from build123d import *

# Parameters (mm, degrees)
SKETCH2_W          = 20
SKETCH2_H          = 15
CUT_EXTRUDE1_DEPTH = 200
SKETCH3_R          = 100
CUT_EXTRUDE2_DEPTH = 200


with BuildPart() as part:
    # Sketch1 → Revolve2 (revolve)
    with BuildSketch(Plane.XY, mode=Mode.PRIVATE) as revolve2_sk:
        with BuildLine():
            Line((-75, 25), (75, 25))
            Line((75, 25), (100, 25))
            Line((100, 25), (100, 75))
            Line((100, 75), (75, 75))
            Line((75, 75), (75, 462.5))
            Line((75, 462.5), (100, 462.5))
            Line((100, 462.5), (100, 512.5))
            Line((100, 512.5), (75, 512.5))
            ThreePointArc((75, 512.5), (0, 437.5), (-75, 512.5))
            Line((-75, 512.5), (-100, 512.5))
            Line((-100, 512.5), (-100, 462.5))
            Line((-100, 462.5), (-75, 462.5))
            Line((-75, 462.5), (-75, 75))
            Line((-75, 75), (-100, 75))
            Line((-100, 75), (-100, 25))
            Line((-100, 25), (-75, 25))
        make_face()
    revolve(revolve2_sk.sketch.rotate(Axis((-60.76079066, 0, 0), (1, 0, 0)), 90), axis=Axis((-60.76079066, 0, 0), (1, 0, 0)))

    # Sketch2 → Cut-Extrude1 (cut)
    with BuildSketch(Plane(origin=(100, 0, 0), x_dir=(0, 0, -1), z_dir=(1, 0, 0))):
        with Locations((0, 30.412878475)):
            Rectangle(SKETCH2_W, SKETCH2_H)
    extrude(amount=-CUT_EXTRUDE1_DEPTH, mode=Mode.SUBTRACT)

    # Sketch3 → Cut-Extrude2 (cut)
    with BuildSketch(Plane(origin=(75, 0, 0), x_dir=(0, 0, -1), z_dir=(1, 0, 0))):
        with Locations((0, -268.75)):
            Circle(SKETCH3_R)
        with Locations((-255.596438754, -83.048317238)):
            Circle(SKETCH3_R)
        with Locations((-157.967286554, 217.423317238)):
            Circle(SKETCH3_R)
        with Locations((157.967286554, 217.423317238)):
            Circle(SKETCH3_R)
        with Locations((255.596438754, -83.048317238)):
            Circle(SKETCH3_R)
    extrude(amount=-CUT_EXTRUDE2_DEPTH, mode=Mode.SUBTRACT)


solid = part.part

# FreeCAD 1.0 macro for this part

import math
import FreeCAD as App
import Part
import Sketcher
from FreeCAD import Vector


def add_polygon(sketch, points):
    """Adds a closed chain of lines whose ends are joined by coincident constraints."""
    first, n = sketch.GeometryCount, len(points)
    for a, b in zip(points, points[1:] + points[:1]):
        sketch.addGeometry(Part.LineSegment(App.Vector(*a, 0), App.Vector(*b, 0)), False)
    for i in range(n):
        sketch.addConstraint(Sketcher.Constraint("Coincident", first + i, 2, first + (i + 1) % n, 1))

doc = App.newDocument("Part")
params = doc.addObject("Spreadsheet::Sheet", "Params")
for row, (alias, value) in enumerate([
    ("sketch1_radius", "75 mm"),
    ("sketch1_width", "25 mm"),
    ("sketch1_height", "50 mm"),
    ("sketch1_height2", "387.5 mm"),
    ("revolution_angle", "360 deg"),
    ("sketch2_width", "15 mm"),
    ("sketch2_height", "20 mm"),
    ("pocket1_length", "200 mm"),
    ("sketch3_diameter", "200 mm"),
    ("pocket2_length", "200 mm"),
], start=1):
    params.set(f"A{row}", alias)
    params.set(f"B{row}", "=" + value)
    params.setAlias(f"B{row}", alias)

body = doc.addObject("PartDesign::Body", "Body")

# Sketch on XY plane
sketch1 = body.newObject("Sketcher::SketchObject", "Sketch")
sketch1.AttachmentSupport = (doc.getObject("XY_Plane"), [""])
sketch1.MapMode = "FlatFace"
sketch1.addGeometry([
    Part.LineSegment(Vector(100, 25, 0), Vector(100, 75, 0)),  # 0
    Part.LineSegment(Vector(100, 75, 0), Vector(75, 75, 0)),  # 1
    Part.LineSegment(Vector(75, 75, 0), Vector(75, 462, 0)),  # 2
    Part.LineSegment(Vector(75, 462, 0), Vector(100, 462, 0)),  # 3
    Part.LineSegment(Vector(100, 462, 0), Vector(100, 512, 0)),  # 4
    Part.LineSegment(Vector(100, 512, 0), Vector(75, 512, 0)),  # 5
    Part.ArcOfCircle(Part.Circle(Vector(0, 512, 0), Vector(0, 0, 1), 75), math.radians(180), math.radians(360)),  # 6
    Part.LineSegment(Vector(-75, 512, 0), Vector(-100, 512, 0)),  # 7
    Part.LineSegment(Vector(-100, 512, 0), Vector(-100, 462, 0)),  # 8
    Part.LineSegment(Vector(-100, 462, 0), Vector(-75, 462, 0)),  # 9
    Part.LineSegment(Vector(-75, 462, 0), Vector(-75, 75, 0)),  # 10
    Part.LineSegment(Vector(-75, 75, 0), Vector(-100, 75, 0)),  # 11
    Part.LineSegment(Vector(-100, 75, 0), Vector(-100, 25, 0)),  # 12
    Part.LineSegment(Vector(-100, 25, 0), Vector(100, 25, 0)),  # 13
], False)
sketch1.addConstraint([
    Sketcher.Constraint("Coincident", 0, 2, 1, 1),
    Sketcher.Constraint("Coincident", 1, 2, 2, 1),
    Sketcher.Constraint("Coincident", 2, 2, 3, 1),
    Sketcher.Constraint("Coincident", 3, 2, 4, 1),
    Sketcher.Constraint("Coincident", 4, 2, 5, 1),
    Sketcher.Constraint("Coincident", 5, 2, 6, 2),
    Sketcher.Constraint("Coincident", 6, 1, 7, 1),
    Sketcher.Constraint("Coincident", 7, 2, 8, 1),
    Sketcher.Constraint("Coincident", 8, 2, 9, 1),
    Sketcher.Constraint("Coincident", 9, 2, 10, 1),
    Sketcher.Constraint("Coincident", 10, 2, 11, 1),
    Sketcher.Constraint("Coincident", 11, 2, 12, 1),
    Sketcher.Constraint("Coincident", 12, 2, 13, 1),
    Sketcher.Constraint("Coincident", 13, 2, 0, 1),
    Sketcher.Constraint("Vertical", 0),
    Sketcher.Constraint("Horizontal", 1),
    Sketcher.Constraint("Vertical", 2),
    Sketcher.Constraint("Horizontal", 3),
    Sketcher.Constraint("Vertical", 4),
    Sketcher.Constraint("Horizontal", 5),
    Sketcher.Constraint("Horizontal", 7),
    Sketcher.Constraint("Vertical", 8),
    Sketcher.Constraint("Horizontal", 9),
    Sketcher.Constraint("Vertical", 10),
    Sketcher.Constraint("Horizontal", 11),
    Sketcher.Constraint("Vertical", 12),
    Sketcher.Constraint("Horizontal", 13),
    Sketcher.Constraint("Symmetric", 5, 2, 6, 1, -2),
    Sketcher.Constraint("Symmetric", 3, 2, 8, 2, -2),
    Sketcher.Constraint("Symmetric", 1, 2, 10, 2, -2),
    Sketcher.Constraint("Horizontal", 6, 3, 4, 2),
    Sketcher.Constraint("Vertical", 0, 2, 3, 2),
    Sketcher.Constraint("Vertical", 2, 2, 5, 2),
    Sketcher.Constraint("Vertical", 8, 2, 11, 2),
    Sketcher.Constraint("Equal", 0, 4),
    Sketcher.Constraint("Radius", 6, 75.0),
    Sketcher.Constraint("DistanceX", 1, 2, 1, 1, 25.0),
    Sketcher.Constraint("DistanceY", 0, 1, 0, 2, 50.0),
    Sketcher.Constraint("DistanceY", 2, 1, 2, 2, 387.5),
    Sketcher.Constraint("DistanceY", -1, 1, 0, 2, 75.0),
])
sketch1.setExpression("Constraints[35]", "Params.sketch1_radius")
sketch1.setExpression("Constraints[36]", "Params.sketch1_width")
sketch1.setExpression("Constraints[37]", "Params.sketch1_height")
sketch1.setExpression("Constraints[38]", "Params.sketch1_height2")
revolution = body.newObject("PartDesign::Revolution", "Revolution")
revolution.Profile = sketch1
revolution.ReferenceAxis = (sketch1, ["H_Axis"])
revolution.setExpression("Angle", "Params.revolution_angle")

# Sketch on YZ plane
sketch2 = body.newObject("Sketcher::SketchObject", "Sketch001")
sketch2.AttachmentSupport = (doc.getObject("YZ_Plane"), [""])
sketch2.MapMode = "FlatFace"
sketch2.AttachmentOffset = App.Placement(Vector(0, 0, 100), App.Rotation())
add_polygon(sketch2, [(38, 10), (23, 10), (23, -10), (38, -10)])  # lines 0-3
sketch2.addConstraint([
    Sketcher.Constraint("Horizontal", 0),
    Sketcher.Constraint("Vertical", 1),
    Sketcher.Constraint("Horizontal", 2),
    Sketcher.Constraint("Vertical", 3),
    Sketcher.Constraint("DistanceX", 0, 2, 0, 1, 15.0),
    Sketcher.Constraint("DistanceY", 1, 2, 1, 1, 20.0),
    Sketcher.Constraint("DistanceY", -1, 1, 0, 2, 10.0),
    Sketcher.Constraint("DistanceX", -1, 1, 0, 2, 22.912878),
])
sketch2.setExpression("Constraints[8]", "Params.sketch2_width")
sketch2.setExpression("Constraints[9]", "Params.sketch2_height")
pocket1 = body.newObject("PartDesign::Pocket", "Pocket")
pocket1.Profile = sketch2
pocket1.setExpression("Length", "Params.pocket1_length")

# Sketch on YZ plane
sketch3 = body.newObject("Sketcher::SketchObject", "Sketch002")
sketch3.AttachmentSupport = (doc.getObject("YZ_Plane"), [""])
sketch3.MapMode = "FlatFace"
sketch3.AttachmentOffset = App.Placement(Vector(0, 0, 75), App.Rotation())
sketch3.addGeometry([
    Part.Circle(Vector(-269, 0, 0), Vector(0, 0, 1), 100),  # 0
    Part.Circle(Vector(-83, 256, 0), Vector(0, 0, 1), 100),  # 1
    Part.Circle(Vector(217, 158, 0), Vector(0, 0, 1), 100),  # 2
    Part.Circle(Vector(217, -158, 0), Vector(0, 0, 1), 100),  # 3
    Part.Circle(Vector(-83, -256, 0), Vector(0, 0, 1), 100),  # 4
], False)
sketch3.addConstraint([
    Sketcher.Constraint("Equal", 0, 1),
    Sketcher.Constraint("Equal", 1, 2),
    Sketcher.Constraint("Equal", 2, 3),
    Sketcher.Constraint("Equal", 3, 4),
    Sketcher.Constraint("Symmetric", 2, 3, 3, 3, -1),
    Sketcher.Constraint("Symmetric", 1, 3, 4, 3, -1),
    Sketcher.Constraint("PointOnObject", 0, 3, -1),
    Sketcher.Constraint("Diameter", 0, 200.0),
    Sketcher.Constraint("DistanceX", 0, 3, -1, 1, 268.75),
    Sketcher.Constraint("DistanceY", -1, 1, 1, 3, 255.596439),
    Sketcher.Constraint("DistanceX", 1, 3, -1, 1, 83.048317),
    Sketcher.Constraint("DistanceX", -1, 1, 2, 3, 217.423317),
    Sketcher.Constraint("DistanceY", -1, 1, 2, 3, 157.967287),
])
sketch3.setExpression("Constraints[7]", "Params.sketch3_diameter")
pocket2 = body.newObject("PartDesign::Pocket", "Pocket001")
pocket2.Profile = sketch3
pocket2.setExpression("Length", "Params.pocket2_length")

doc.recompute()
